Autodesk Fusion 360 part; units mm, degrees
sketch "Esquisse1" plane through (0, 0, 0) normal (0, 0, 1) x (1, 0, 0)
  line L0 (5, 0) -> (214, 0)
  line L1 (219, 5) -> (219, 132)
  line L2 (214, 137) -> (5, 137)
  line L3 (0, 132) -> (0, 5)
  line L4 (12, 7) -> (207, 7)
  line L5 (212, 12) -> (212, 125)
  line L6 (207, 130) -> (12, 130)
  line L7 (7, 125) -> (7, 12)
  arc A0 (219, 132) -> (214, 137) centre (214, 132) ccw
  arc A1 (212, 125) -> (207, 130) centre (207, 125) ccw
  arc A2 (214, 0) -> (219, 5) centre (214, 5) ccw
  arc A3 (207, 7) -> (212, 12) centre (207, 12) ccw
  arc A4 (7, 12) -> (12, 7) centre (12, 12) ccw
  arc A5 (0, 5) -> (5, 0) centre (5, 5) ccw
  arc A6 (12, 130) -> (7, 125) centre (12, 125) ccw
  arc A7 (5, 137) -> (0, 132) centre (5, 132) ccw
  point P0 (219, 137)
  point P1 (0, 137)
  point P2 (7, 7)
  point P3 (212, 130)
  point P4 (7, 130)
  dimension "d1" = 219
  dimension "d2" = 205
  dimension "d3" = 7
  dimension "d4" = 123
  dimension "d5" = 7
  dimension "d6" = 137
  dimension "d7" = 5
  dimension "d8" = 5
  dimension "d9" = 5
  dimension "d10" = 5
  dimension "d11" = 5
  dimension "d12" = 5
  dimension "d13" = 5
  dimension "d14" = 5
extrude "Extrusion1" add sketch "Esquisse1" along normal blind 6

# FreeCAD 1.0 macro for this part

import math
import FreeCAD as App
import Part
import Sketcher
Q = App.Units.Quantity

doc = App.newDocument("Part")
body = doc.addObject("PartDesign::Body", "Body")

sketch1 = body.newObject("Sketcher::SketchObject", "Sketch")
sketch1.AttachmentSupport = (doc.getObject("XY_Plane"), [""])
sketch1.MapMode = "FlatFace"
sketch1.addGeometry([
    Part.ArcOfCircle(Part.Circle(App.Vector(5, 5, 0), App.Vector(0, 0, 1), 5), math.radians(180), math.radians(270)),
    Part.LineSegment(App.Vector(5, 0, 0), App.Vector(214, 0, 0)),
    Part.ArcOfCircle(Part.Circle(App.Vector(214, 5, 0), App.Vector(0, 0, 1), 5), math.radians(-90), math.radians(0)),
    Part.LineSegment(App.Vector(219, 5, 0), App.Vector(219, 132, 0)),
    Part.ArcOfCircle(Part.Circle(App.Vector(214, 132, 0), App.Vector(0, 0, 1), 5), math.radians(0), math.radians(90)),
    Part.LineSegment(App.Vector(214, 137, 0), App.Vector(5, 137, 0)),
    Part.ArcOfCircle(Part.Circle(App.Vector(5, 132, 0), App.Vector(0, 0, 1), 5), math.radians(90), math.radians(180)),
    Part.LineSegment(App.Vector(0, 132, 0), App.Vector(0, 5, 0)),
    Part.LineSegment(App.Vector(207, 7, 0), App.Vector(12, 7, 0)),
    Part.ArcOfCircle(Part.Circle(App.Vector(12, 12, 0), App.Vector(0, 0, 1), 5), math.radians(180), math.radians(270)),
    Part.LineSegment(App.Vector(7, 12, 0), App.Vector(7, 125, 0)),
    Part.ArcOfCircle(Part.Circle(App.Vector(12, 125, 0), App.Vector(0, 0, 1), 5), math.radians(90), math.radians(180)),
    Part.LineSegment(App.Vector(12, 130, 0), App.Vector(207, 130, 0)),
    Part.ArcOfCircle(Part.Circle(App.Vector(207, 125, 0), App.Vector(0, 0, 1), 5), math.radians(0), math.radians(90)),
    Part.LineSegment(App.Vector(212, 125, 0), App.Vector(212, 12, 0)),
    Part.ArcOfCircle(Part.Circle(App.Vector(207, 12, 0), App.Vector(0, 0, 1), 5), math.radians(-90), math.radians(0)),
], False)
sketch1.addConstraint([
    Sketcher.Constraint("Tangent", 0, 2, 1, 1),
    Sketcher.Constraint("Tangent", 1, 2, 2, 1),
    Sketcher.Constraint("Tangent", 2, 2, 3, 1),
    Sketcher.Constraint("Tangent", 3, 2, 4, 1),
    Sketcher.Constraint("Tangent", 4, 2, 5, 1),
    Sketcher.Constraint("Tangent", 5, 2, 6, 1),
    Sketcher.Constraint("Tangent", 6, 2, 7, 1),
    Sketcher.Constraint("Tangent", 7, 2, 0, 1),
    Sketcher.Constraint("Tangent", 8, 2, 9, 2),
    Sketcher.Constraint("Tangent", 9, 1, 10, 1),
    Sketcher.Constraint("Tangent", 10, 2, 11, 2),
    Sketcher.Constraint("Tangent", 11, 1, 12, 1),
    Sketcher.Constraint("Tangent", 12, 2, 13, 2),
    Sketcher.Constraint("Tangent", 13, 1, 14, 1),
    Sketcher.Constraint("Tangent", 14, 2, 15, 2),
    Sketcher.Constraint("Tangent", 15, 1, 8, 1),
    Sketcher.Constraint("Horizontal", 1),
    Sketcher.Constraint("Vertical", 3),
    Sketcher.Constraint("Horizontal", 5),
    Sketcher.Constraint("Vertical", 7),
    Sketcher.Constraint("Horizontal", 8),
    Sketcher.Constraint("Vertical", 10),
    Sketcher.Constraint("Horizontal", 12),
    Sketcher.Constraint("Vertical", 14),
    Sketcher.Constraint("Equal", 0, 2),
    Sketcher.Constraint("Equal", 2, 4),
    Sketcher.Constraint("Equal", 4, 6),
    Sketcher.Constraint("Equal", 6, 9),
    Sketcher.Constraint("Equal", 9, 11),
    Sketcher.Constraint("Equal", 11, 13),
    Sketcher.Constraint("Equal", 13, 15),
    Sketcher.Constraint("PointOnObject", 0, 2, -1),
    Sketcher.Constraint("PointOnObject", 6, 2, -2),
    Sketcher.Constraint("Radius", 0, Q("5 mm")),
    Sketcher.Constraint("DistanceX", -1, 1, 2, 2, Q("219 mm")),
    Sketcher.Constraint("DistanceY", -1, 1, 4, 2, Q("137 mm")),
    Sketcher.Constraint("DistanceY", -1, 1, 8, 2, Q("7 mm")),
    Sketcher.Constraint("DistanceX", -1, 1, 9, 1, Q("7 mm")),
    Sketcher.Constraint("DistanceY", 11, 3, 6, 3, Q("7 mm")),
    Sketcher.Constraint("DistanceX", 13, 3, 4, 3, Q("7 mm")),
])
pad1 = body.newObject("PartDesign::Pad", "Pad")
pad1.Profile = sketch1
pad1.Length = 6

doc.recompute()
